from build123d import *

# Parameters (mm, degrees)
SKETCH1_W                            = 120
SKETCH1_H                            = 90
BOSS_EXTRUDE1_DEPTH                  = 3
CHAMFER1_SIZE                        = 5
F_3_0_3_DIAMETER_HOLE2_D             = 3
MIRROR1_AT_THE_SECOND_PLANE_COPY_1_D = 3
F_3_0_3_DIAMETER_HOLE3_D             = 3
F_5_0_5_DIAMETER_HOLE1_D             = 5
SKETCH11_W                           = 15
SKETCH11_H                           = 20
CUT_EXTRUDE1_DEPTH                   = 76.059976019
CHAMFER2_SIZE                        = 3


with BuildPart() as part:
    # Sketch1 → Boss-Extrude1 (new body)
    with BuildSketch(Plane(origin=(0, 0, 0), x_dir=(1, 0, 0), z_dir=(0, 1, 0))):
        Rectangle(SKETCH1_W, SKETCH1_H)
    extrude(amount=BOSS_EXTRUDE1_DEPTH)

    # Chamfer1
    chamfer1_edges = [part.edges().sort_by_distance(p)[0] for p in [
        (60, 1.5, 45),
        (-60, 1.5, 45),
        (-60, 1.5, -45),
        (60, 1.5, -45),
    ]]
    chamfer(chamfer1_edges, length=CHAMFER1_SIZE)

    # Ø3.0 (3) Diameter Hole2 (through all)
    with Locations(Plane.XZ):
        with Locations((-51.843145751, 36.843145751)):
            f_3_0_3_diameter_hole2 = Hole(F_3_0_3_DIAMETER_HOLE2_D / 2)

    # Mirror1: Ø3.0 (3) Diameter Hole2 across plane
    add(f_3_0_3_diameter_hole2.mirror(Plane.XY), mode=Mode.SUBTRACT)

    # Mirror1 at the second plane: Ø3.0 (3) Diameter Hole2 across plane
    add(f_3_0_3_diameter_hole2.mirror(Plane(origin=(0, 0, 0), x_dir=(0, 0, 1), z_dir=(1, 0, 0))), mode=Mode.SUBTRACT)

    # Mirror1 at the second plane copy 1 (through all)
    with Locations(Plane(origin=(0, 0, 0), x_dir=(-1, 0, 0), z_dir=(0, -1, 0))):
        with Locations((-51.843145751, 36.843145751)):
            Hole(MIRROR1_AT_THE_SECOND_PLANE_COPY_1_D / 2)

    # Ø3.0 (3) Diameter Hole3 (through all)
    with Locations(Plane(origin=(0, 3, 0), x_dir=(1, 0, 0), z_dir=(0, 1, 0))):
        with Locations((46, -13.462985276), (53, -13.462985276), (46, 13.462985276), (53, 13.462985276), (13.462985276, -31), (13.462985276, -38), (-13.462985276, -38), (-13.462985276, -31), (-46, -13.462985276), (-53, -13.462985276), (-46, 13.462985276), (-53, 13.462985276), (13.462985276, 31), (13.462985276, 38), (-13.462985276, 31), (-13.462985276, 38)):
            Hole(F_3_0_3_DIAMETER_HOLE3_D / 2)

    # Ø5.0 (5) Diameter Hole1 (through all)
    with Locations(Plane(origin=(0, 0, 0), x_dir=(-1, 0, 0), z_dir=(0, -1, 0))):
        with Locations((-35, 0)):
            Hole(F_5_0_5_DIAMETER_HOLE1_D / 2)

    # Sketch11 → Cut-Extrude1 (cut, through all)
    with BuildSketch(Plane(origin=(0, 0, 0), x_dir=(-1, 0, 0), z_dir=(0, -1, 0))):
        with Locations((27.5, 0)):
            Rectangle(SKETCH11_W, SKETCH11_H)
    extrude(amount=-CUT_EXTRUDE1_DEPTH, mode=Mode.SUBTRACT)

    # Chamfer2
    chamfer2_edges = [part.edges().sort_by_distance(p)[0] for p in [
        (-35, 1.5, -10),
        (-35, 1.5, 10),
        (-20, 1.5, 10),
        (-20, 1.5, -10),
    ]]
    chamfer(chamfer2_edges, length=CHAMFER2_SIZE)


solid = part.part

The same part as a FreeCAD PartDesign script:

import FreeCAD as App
import Part
import Sketcher

V = App.Vector


def edges_at(feature, points):
    """Names of the edges that pass closest to the given points."""
    edges = feature.Shape.Edges
    near = lambda p: min(range(len(edges)), key=lambda i: edges[i].distToShape(Part.Vertex(*p))[0])
    return sorted({f"Edge{near(p) + 1}" for p in points})

doc = App.newDocument("Part")
params = doc.addObject("Spreadsheet::Sheet", "Params")
for row, (alias, value) in enumerate([
    ("sketch1_width", "120 mm"),
    ("sketch1_height", "90 mm"),
    ("pad1_length", "3 mm"),
    ("chamfer_size", "5 mm"),
    ("sketch2_diameter", "3 mm"),
    ("hole_diameter", "3 mm"),
    ("sketch3_diameter", "3 mm"),
    ("hole2_diameter", "3 mm"),
    ("sketch4_diameter", "3 mm"),
    ("hole3_diameter", "3 mm"),
    ("sketch5_diameter", "5 mm"),
    ("hole4_diameter", "5 mm"),
    ("sketch6_width", "15 mm"),
    ("sketch6_height", "20 mm"),
    ("chamfer2_size", "3 mm"),
], start=1):
    params.set(f"A{row}", alias)
    params.set(f"B{row}", "=" + value)
    params.setAlias(f"B{row}", alias)

body = doc.addObject("PartDesign::Body", "Body")

# Sketch on XZ plane
sketch1 = body.newObject("Sketcher::SketchObject", "Sketch")
sketch1.AttachmentSupport = (doc.getObject("XZ_Plane"), [""])
sketch1.MapMode = "FlatFace"
sketch1.addGeometry([
    Part.LineSegment(V(-60, -45, 0), V(-60, 45, 0)),
    Part.LineSegment(V(-60, 45, 0), V(60, 45, 0)),
    Part.LineSegment(V(60, 45, 0), V(60, -45, 0)),
    Part.LineSegment(V(60, -45, 0), V(-60, -45, 0)),
], False)
sketch1.addConstraint([
    Sketcher.Constraint("Coincident", 0, 2, 1, 1),
    Sketcher.Constraint("Coincident", 1, 2, 2, 1),
    Sketcher.Constraint("Coincident", 2, 2, 3, 1),
    Sketcher.Constraint("Coincident", 3, 2, 0, 1),
    Sketcher.Constraint("Vertical", 0),
    Sketcher.Constraint("Horizontal", 1),
    Sketcher.Constraint("Vertical", 2),
    Sketcher.Constraint("Horizontal", 3),
    Sketcher.Constraint("Symmetric", 0, 2, 2, 2, -1, 1),
    Sketcher.Constraint("DistanceX", 1, 1, 1, 2, 120.0),
    Sketcher.Constraint("DistanceY", 0, 1, 0, 2, 90.0),
])
sketch1.setExpression("Constraints[9]", "Params.sketch1_width")
sketch1.setExpression("Constraints[10]", "Params.sketch1_height")
pad1 = body.newObject("PartDesign::Pad", "Pad")
pad1.Profile = sketch1
pad1.setExpression("Length", "Params.pad1_length")
pad1.Reversed = True
doc.recompute()

chamfer = body.newObject("PartDesign::Chamfer", "Chamfer")
chamfer.Base = (pad1, edges_at(pad1, [
    (60, 1.5, 45),
    (-60, 1.5, 45),
    (-60, 1.5, -45),
    (60, 1.5, -45),
]))
chamfer.setExpression("Size", "Params.chamfer_size")

# Sketch on XZ plane
sketch2 = body.newObject("Sketcher::SketchObject", "Sketch001")
sketch2.AttachmentSupport = (doc.getObject("XZ_Plane"), [""])
sketch2.MapMode = "FlatFace"
sketch2.addGeometry(Part.Circle(V(-51.8, 36.8, 0), V(0, 0, 1), 1.5), False)
sketch2.addConstraint([
    Sketcher.Constraint("Diameter", 0, 3.0),
    Sketcher.Constraint("DistanceX", 0, 3, -1, 1, 51.843146),
    Sketcher.Constraint("DistanceY", -1, 1, 0, 3, 36.843146),
])
sketch2.setExpression("Constraints[0]", "Params.sketch2_diameter")
doc.recompute()
hole = body.newObject("PartDesign::Hole", "Hole")
hole.Profile = sketch2
hole.ThreadType = "None"
hole.setExpression("Diameter", "Params.hole_diameter")
hole.DepthType = "ThroughAll"
doc.recompute()

mirrored = body.newObject("PartDesign::Mirrored", "Mirrored")
mirrored.Originals = [hole]
mirrored.MirrorPlane = (doc.getObject("XY_Plane"), [""])
body.Tip = mirrored
doc.recompute()

mirrored2 = body.newObject("PartDesign::Mirrored", "Mirrored001")
mirrored2.Originals = [hole]
mirrored2.MirrorPlane = (doc.getObject("YZ_Plane"), [""])
body.Tip = mirrored2

# Sketch on XZ plane
sketch3 = body.newObject("Sketcher::SketchObject", "Sketch002")
sketch3.AttachmentSupport = (doc.getObject("XZ_Plane"), [""])
sketch3.MapMode = "FlatFace"
sketch3.addGeometry(Part.Circle(V(51.8, -36.8, 0), V(0, 0, 1), 1.5), False)
sketch3.addConstraint([
    Sketcher.Constraint("Diameter", 0, 3.0),
    Sketcher.Constraint("DistanceX", -1, 1, 0, 3, 51.843146),
    Sketcher.Constraint("DistanceY", 0, 3, -1, 1, 36.843146),
])
sketch3.setExpression("Constraints[0]", "Params.sketch3_diameter")
doc.recompute()
hole2 = body.newObject("PartDesign::Hole", "Hole001")
hole2.Profile = sketch3
hole2.ThreadType = "None"
hole2.setExpression("Diameter", "Params.hole2_diameter")
hole2.DepthType = "ThroughAll"

# Sketch on XZ plane
sketch4 = body.newObject("Sketcher::SketchObject", "Sketch003")
sketch4.AttachmentSupport = (doc.getObject("XZ_Plane"), [""])
sketch4.MapMode = "FlatFace"
sketch4.AttachmentOffset = App.Placement(V(0, 0, -3), App.Rotation())
sketch4.addGeometry([
    Part.Circle(V(46, 13.5, 0), V(0, 0, 1), 1.5),  # 0
    Part.Circle(V(53, 13.5, 0), V(0, 0, 1), 1.5),  # 1
    Part.Circle(V(46, -13.5, 0), V(0, 0, 1), 1.5),  # 2
    Part.Circle(V(53, -13.5, 0), V(0, 0, 1), 1.5),  # 3
    Part.Circle(V(13.5, 31, 0), V(0, 0, 1), 1.5),  # 4
    Part.Circle(V(13.5, 38, 0), V(0, 0, 1), 1.5),  # 5
    Part.Circle(V(-13.5, 38, 0), V(0, 0, 1), 1.5),  # 6
    Part.Circle(V(-13.5, 31, 0), V(0, 0, 1), 1.5),  # 7
    Part.Circle(V(-46, 13.5, 0), V(0, 0, 1), 1.5),  # 8
    Part.Circle(V(-53, 13.5, 0), V(0, 0, 1), 1.5),  # 9
    Part.Circle(V(-46, -13.5, 0), V(0, 0, 1), 1.5),  # 10
    Part.Circle(V(-53, -13.5, 0), V(0, 0, 1), 1.5),  # 11
    Part.Circle(V(13.5, -31, 0), V(0, 0, 1), 1.5),  # 12
    Part.Circle(V(13.5, -38, 0), V(0, 0, 1), 1.5),  # 13
    Part.Circle(V(-13.5, -31, 0), V(0, 0, 1), 1.5),  # 14
    Part.Circle(V(-13.5, -38, 0), V(0, 0, 1), 1.5),  # 15
], False)
sketch4.addConstraint([
    Sketcher.Constraint("Equal", 0, 1),
    Sketcher.Constraint("Equal", 1, 2),
    Sketcher.Constraint("Equal", 2, 3),
    Sketcher.Constraint("Equal", 3, 4),
    Sketcher.Constraint("Equal", 4, 5),
    Sketcher.Constraint("Equal", 5, 6),
    Sketcher.Constraint("Equal", 6, 7),
    Sketcher.Constraint("Equal", 7, 8),
    Sketcher.Constraint("Equal", 8, 9),
    Sketcher.Constraint("Equal", 9, 10),
    Sketcher.Constraint("Equal", 10, 11),
    Sketcher.Constraint("Equal", 11, 12),
    Sketcher.Constraint("Equal", 12, 13),
    Sketcher.Constraint("Equal", 13, 14),
    Sketcher.Constraint("Equal", 14, 15),
    Sketcher.Constraint("Symmetric", 2, 3, 8, 3, -1, 1),
    Sketcher.Constraint("Symmetric", 3, 3, 9, 3, -1, 1),
    Sketcher.Constraint("Symmetric", 0, 3, 10, 3, -1, 1),
    Sketcher.Constraint("Symmetric", 1, 3, 11, 3, -1, 1),
    Sketcher.Constraint("Symmetric", 7, 3, 12, 3, -1, 1),
    Sketcher.Constraint("Symmetric", 6, 3, 13, 3, -1, 1),
    Sketcher.Constraint("Symmetric", 4, 3, 14, 3, -1, 1),
    Sketcher.Constraint("Symmetric", 5, 3, 15, 3, -1, 1),
    Sketcher.Constraint("Symmetric", 5, 3, 6, 3, -2),
    Sketcher.Constraint("Symmetric", 4, 3, 7, 3, -2),
    Sketcher.Constraint("Symmetric", 0, 3, 8, 3, -2),
    Sketcher.Constraint("Symmetric", 1, 3, 9, 3, -2),
    Sketcher.Constraint("Horizontal", 0, 3, 1, 3),
    Sketcher.Constraint("Vertical", 4, 3, 5, 3),
    Sketcher.Constraint("Diameter", 0, 3.0),
    Sketcher.Constraint("DistanceX", -1, 1, 0, 3, 46.0),
    Sketcher.Constraint("DistanceX", -1, 1, 1, 3, 53.0),
    Sketcher.Constraint("DistanceY", -1, 1, 4, 3, 31.0),
    Sketcher.Constraint("DistanceY", -1, 1, 5, 3, 38.0),
    Sketcher.Constraint("DistanceY", 2, 3, 0, 3, 26.925971),
    Sketcher.Constraint("DistanceX", 6, 3, 5, 3, 26.925971),
])
sketch4.setExpression("Constraints[29]", "Params.sketch4_diameter")
doc.recompute()
hole3 = body.newObject("PartDesign::Hole", "Hole002")
hole3.Profile = sketch4
hole3.ThreadType = "None"
hole3.setExpression("Diameter", "Params.hole3_diameter")
hole3.DepthType = "ThroughAll"
hole3.Reversed = True

# Sketch on XZ plane
sketch5 = body.newObject("Sketcher::SketchObject", "Sketch004")
sketch5.AttachmentSupport = (doc.getObject("XZ_Plane"), [""])
sketch5.MapMode = "FlatFace"
sketch5.addGeometry(Part.Circle(V(35, 0, 0), V(0, 0, 1), 2.5), False)
sketch5.addConstraint([
    Sketcher.Constraint("PointOnObject", 0, 3, -1),
    Sketcher.Constraint("Diameter", 0, 5.0),
    Sketcher.Constraint("DistanceX", -1, 1, 0, 3, 35.0),
])
sketch5.setExpression("Constraints[1]", "Params.sketch5_diameter")
doc.recompute()
hole4 = body.newObject("PartDesign::Hole", "Hole003")
hole4.Profile = sketch5
hole4.ThreadType = "None"
hole4.setExpression("Diameter", "Params.hole4_diameter")
hole4.DepthType = "ThroughAll"

# Sketch on XZ plane
sketch6 = body.newObject("Sketcher::SketchObject", "Sketch005")
sketch6.AttachmentSupport = (doc.getObject("XZ_Plane"), [""])
sketch6.MapMode = "FlatFace"
sketch6.addGeometry([
    Part.LineSegment(V(-20, -10, 0), V(-20, 10, 0)),
    Part.LineSegment(V(-20, 10, 0), V(-35, 10, 0)),
    Part.LineSegment(V(-35, 10, 0), V(-35, -10, 0)),
    Part.LineSegment(V(-35, -10, 0), V(-20, -10, 0)),
], False)
sketch6.addConstraint([
    Sketcher.Constraint("Coincident", 0, 2, 1, 1),
    Sketcher.Constraint("Coincident", 1, 2, 2, 1),
    Sketcher.Constraint("Coincident", 2, 2, 3, 1),
    Sketcher.Constraint("Coincident", 3, 2, 0, 1),
    Sketcher.Constraint("Vertical", 0),
    Sketcher.Constraint("Horizontal", 1),
    Sketcher.Constraint("Vertical", 2),
    Sketcher.Constraint("Horizontal", 3),
    Sketcher.Constraint("DistanceX", 1, 2, 1, 1, 15.0),
    Sketcher.Constraint("DistanceY", 0, 1, 0, 2, 20.0),
    Sketcher.Constraint("DistanceX", 0, 2, -1, 1, 20.0),
    Sketcher.Constraint("DistanceY", -1, 1, 0, 2, 10.0),
])
sketch6.setExpression("Constraints[8]", "Params.sketch6_width")
sketch6.setExpression("Constraints[9]", "Params.sketch6_height")
pocket1 = body.newObject("PartDesign::Pocket", "Pocket")
pocket1.Profile = sketch6
pocket1.Type = "ThroughAll"
doc.recompute()

chamfer2 = body.newObject("PartDesign::Chamfer", "Chamfer001")
chamfer2.Base = (pocket1, edges_at(pocket1, [
    (-35, 1.5, -10),
    (-35, 1.5, 10),
    (-20, 1.5, 10),
    (-20, 1.5, -10),
]))
chamfer2.setExpression("Size", "Params.chamfer2_size")

doc.recompute()
